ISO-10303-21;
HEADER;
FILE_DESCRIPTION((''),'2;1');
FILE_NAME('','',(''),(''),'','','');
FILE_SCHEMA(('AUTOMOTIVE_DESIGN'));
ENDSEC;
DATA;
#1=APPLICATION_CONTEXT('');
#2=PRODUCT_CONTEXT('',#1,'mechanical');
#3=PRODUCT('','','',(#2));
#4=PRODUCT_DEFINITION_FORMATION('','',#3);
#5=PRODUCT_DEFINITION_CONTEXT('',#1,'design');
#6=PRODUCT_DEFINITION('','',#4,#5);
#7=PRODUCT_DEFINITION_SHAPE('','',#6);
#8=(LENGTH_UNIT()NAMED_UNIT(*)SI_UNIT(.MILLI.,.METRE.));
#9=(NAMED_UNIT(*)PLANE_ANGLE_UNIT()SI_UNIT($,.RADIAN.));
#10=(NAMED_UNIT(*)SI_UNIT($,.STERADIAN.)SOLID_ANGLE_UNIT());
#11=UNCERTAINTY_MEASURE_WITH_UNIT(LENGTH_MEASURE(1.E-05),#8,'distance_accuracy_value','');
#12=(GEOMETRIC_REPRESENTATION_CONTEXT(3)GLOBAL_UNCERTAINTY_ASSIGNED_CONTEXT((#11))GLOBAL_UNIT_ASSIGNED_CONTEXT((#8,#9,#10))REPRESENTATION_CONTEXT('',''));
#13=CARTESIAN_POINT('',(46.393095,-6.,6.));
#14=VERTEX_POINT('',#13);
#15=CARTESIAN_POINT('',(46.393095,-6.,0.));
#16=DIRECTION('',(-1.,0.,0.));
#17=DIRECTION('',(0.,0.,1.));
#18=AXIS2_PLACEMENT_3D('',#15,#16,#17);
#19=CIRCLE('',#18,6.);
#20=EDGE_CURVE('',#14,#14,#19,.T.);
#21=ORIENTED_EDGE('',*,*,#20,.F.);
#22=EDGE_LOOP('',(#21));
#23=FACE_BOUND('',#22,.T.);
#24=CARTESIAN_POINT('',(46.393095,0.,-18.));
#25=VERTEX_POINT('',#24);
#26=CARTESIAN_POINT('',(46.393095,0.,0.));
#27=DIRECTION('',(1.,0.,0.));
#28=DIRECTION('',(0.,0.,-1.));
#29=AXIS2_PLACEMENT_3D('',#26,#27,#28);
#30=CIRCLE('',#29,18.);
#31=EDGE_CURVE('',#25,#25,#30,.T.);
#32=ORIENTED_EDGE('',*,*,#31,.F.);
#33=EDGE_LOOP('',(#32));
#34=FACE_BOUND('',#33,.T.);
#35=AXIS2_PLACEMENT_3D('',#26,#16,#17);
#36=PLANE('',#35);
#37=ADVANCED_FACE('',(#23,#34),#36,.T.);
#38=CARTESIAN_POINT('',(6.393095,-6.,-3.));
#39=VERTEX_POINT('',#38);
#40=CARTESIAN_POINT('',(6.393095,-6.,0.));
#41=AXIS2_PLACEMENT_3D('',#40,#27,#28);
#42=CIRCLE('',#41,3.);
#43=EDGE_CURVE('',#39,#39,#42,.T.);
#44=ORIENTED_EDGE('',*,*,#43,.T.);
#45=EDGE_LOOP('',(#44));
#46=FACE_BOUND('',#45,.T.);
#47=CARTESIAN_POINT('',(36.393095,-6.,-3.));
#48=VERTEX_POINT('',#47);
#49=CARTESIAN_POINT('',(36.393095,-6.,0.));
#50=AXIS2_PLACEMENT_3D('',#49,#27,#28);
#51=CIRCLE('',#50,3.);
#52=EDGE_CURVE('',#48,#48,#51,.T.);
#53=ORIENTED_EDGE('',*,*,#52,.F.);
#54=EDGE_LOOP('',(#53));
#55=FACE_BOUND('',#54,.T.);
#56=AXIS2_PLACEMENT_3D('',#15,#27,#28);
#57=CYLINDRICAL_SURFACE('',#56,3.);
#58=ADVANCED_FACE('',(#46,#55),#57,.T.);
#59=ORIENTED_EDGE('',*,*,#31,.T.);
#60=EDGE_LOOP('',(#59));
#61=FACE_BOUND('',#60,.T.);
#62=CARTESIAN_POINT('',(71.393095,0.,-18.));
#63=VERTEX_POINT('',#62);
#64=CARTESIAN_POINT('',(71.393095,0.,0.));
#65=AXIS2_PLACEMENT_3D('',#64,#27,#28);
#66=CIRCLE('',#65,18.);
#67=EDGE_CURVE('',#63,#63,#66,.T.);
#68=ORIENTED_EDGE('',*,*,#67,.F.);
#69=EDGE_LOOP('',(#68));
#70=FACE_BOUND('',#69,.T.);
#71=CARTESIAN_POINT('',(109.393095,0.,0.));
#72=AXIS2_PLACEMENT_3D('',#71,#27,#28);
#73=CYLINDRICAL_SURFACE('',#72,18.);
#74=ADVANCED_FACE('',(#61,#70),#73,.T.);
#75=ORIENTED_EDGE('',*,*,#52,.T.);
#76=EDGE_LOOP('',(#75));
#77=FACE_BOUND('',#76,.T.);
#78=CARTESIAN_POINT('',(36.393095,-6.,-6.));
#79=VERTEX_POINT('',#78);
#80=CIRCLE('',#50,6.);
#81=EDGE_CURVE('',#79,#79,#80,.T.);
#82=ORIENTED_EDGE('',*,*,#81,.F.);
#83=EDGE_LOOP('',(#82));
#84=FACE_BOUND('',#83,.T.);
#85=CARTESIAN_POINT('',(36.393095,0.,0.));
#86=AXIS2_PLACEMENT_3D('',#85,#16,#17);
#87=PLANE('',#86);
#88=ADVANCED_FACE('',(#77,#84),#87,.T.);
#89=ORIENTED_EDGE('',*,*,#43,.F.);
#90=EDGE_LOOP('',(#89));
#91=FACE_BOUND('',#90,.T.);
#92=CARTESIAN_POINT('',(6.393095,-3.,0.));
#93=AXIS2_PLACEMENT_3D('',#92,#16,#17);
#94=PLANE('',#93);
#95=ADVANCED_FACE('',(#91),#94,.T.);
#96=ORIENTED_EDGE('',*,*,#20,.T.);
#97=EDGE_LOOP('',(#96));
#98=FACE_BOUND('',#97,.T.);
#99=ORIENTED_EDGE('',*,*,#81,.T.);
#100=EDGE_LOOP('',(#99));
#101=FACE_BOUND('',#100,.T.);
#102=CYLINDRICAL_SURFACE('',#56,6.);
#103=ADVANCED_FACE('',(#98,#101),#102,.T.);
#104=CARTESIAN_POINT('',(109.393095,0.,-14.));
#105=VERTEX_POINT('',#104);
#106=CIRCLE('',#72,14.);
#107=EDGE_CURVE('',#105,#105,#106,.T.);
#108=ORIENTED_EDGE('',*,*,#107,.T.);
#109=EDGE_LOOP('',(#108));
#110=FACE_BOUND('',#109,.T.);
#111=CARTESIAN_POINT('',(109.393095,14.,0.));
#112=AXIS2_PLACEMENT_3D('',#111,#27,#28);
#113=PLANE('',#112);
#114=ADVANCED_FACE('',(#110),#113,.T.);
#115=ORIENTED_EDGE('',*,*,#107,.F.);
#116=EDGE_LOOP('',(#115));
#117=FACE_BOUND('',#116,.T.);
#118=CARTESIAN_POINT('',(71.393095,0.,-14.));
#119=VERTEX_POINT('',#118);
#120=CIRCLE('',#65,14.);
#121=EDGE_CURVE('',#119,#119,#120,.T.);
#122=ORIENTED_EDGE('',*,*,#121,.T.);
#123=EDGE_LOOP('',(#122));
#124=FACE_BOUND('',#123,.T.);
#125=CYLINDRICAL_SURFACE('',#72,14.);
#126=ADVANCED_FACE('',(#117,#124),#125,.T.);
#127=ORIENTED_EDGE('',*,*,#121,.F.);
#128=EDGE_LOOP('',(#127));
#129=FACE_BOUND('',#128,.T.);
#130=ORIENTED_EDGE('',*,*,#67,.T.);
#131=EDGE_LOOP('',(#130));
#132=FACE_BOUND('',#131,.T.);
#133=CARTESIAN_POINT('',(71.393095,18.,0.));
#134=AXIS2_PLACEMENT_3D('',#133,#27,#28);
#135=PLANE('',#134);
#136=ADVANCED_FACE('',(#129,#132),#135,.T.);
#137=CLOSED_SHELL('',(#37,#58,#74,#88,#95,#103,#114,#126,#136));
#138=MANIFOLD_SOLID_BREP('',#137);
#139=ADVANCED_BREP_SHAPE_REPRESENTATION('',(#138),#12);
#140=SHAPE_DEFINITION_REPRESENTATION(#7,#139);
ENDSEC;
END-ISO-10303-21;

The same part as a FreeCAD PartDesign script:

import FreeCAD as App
import Part
import Sketcher

V = App.Vector

doc = App.newDocument("Part")
body = doc.addObject("PartDesign::Body", "Body")

sketch1 = body.newObject("Sketcher::SketchObject", "Sketch")
sketch1.AttachmentSupport = (doc.getObject("XY_Plane"), [""])
sketch1.MapMode = "FlatFace"
sketch1.addGeometry([
    Part.LineSegment(V(46.4, 18, 0), V(46.4, 0, 0)),
    Part.LineSegment(V(46.4, 0, 0), V(109.4, 0, 0)),
    Part.LineSegment(V(109.4, 0, 0), V(109.4, 14, 0)),
    Part.LineSegment(V(109.4, 14, 0), V(71.4, 14, 0)),
    Part.LineSegment(V(71.4, 14, 0), V(71.4, 18, 0)),
    Part.LineSegment(V(71.4, 18, 0), V(46.4, 18, 0)),
], False)
sketch1.addConstraint([
    Sketcher.Constraint("Coincident", 0, 2, 1, 1),
    Sketcher.Constraint("Coincident", 1, 2, 2, 1),
    Sketcher.Constraint("Coincident", 2, 2, 3, 1),
    Sketcher.Constraint("Coincident", 3, 2, 4, 1),
    Sketcher.Constraint("Coincident", 4, 2, 5, 1),
    Sketcher.Constraint("Coincident", 5, 2, 0, 1),
    Sketcher.Constraint("Vertical", 0),
    Sketcher.Constraint("Horizontal", 1),
    Sketcher.Constraint("Vertical", 2),
    Sketcher.Constraint("Horizontal", 3),
    Sketcher.Constraint("Vertical", 4),
    Sketcher.Constraint("Horizontal", 5),
    Sketcher.Constraint("PointOnObject", 0, 2, -1),
    Sketcher.Constraint("DistanceX", 1, 1, 1, 2, 63.0),
    Sketcher.Constraint("DistanceX", 3, 2, 3, 1, 38.0),
    Sketcher.Constraint("DistanceY", 0, 2, 0, 1, 18.0),
    Sketcher.Constraint("DistanceY", 2, 1, 2, 2, 14.0),
    Sketcher.Constraint("DistanceX", -1, 1, 0, 2, 46.393095),
])
revolution = body.newObject("PartDesign::Revolution", "Revolution")
revolution.Profile = sketch1
revolution.ReferenceAxis = (sketch1, ["H_Axis"])
revolution.Angle = 360

sketch2 = body.newObject("Sketcher::SketchObject", "Sketch001")
sketch2.AttachmentSupport = (doc.getObject("XY_Plane"), [""])
sketch2.MapMode = "FlatFace"
sketch2.addGeometry([
    Part.LineSegment(V(46.4, -6, 0), V(46.4, 0, 0)),
    Part.LineSegment(V(46.4, 0, 0), V(36.4, 0, 0)),
    Part.LineSegment(V(36.4, 0, 0), V(36.4, -3, 0)),
    Part.LineSegment(V(36.4, -3, 0), V(6.4, -3, 0)),
    Part.LineSegment(V(6.4, -3, 0), V(6.4, -6, 0)),
    Part.LineSegment(V(6.4, -6, 0), V(46.4, -6, 0)),
], False)
sketch2.addGeometry(Part.LineSegment(V(46.4, -6, 0), V(6.4, -6, 0)), True)
sketch2.addConstraint([
    Sketcher.Constraint("Coincident", 0, 2, 1, 1),
    Sketcher.Constraint("Coincident", 1, 2, 2, 1),
    Sketcher.Constraint("Coincident", 2, 2, 3, 1),
    Sketcher.Constraint("Coincident", 3, 2, 4, 1),
    Sketcher.Constraint("Coincident", 4, 2, 5, 1),
    Sketcher.Constraint("Coincident", 5, 2, 0, 1),
    Sketcher.Constraint("Vertical", 0),
    Sketcher.Constraint("Horizontal", 1),
    Sketcher.Constraint("Vertical", 2),
    Sketcher.Constraint("Horizontal", 3),
    Sketcher.Constraint("Vertical", 4),
    Sketcher.Constraint("Horizontal", 5),
    Sketcher.Constraint("Horizontal", 6),
    Sketcher.Constraint("Coincident", 6, 1, 5, 2),
    Sketcher.Constraint("PointOnObject", 0, 2, -1),
    Sketcher.Constraint("Vertical", 3, 2, 6, 2),
    Sketcher.Constraint("Equal", 2, 4),
    Sketcher.Constraint("DistanceX", 1, 2, 1, 1, 10.0),
    Sketcher.Constraint("DistanceX", 3, 2, 3, 1, 30.0),
    Sketcher.Constraint("DistanceY", 0, 1, 0, 2, 6.0),
    Sketcher.Constraint("DistanceX", -1, 1, 0, 2, 46.393095),
])
revolution2 = body.newObject("PartDesign::Revolution", "Revolution001")
revolution2.Profile = sketch2
revolution2.ReferenceAxis = (sketch2, ["Axis0"])
revolution2.Angle = 360

doc.recompute()
